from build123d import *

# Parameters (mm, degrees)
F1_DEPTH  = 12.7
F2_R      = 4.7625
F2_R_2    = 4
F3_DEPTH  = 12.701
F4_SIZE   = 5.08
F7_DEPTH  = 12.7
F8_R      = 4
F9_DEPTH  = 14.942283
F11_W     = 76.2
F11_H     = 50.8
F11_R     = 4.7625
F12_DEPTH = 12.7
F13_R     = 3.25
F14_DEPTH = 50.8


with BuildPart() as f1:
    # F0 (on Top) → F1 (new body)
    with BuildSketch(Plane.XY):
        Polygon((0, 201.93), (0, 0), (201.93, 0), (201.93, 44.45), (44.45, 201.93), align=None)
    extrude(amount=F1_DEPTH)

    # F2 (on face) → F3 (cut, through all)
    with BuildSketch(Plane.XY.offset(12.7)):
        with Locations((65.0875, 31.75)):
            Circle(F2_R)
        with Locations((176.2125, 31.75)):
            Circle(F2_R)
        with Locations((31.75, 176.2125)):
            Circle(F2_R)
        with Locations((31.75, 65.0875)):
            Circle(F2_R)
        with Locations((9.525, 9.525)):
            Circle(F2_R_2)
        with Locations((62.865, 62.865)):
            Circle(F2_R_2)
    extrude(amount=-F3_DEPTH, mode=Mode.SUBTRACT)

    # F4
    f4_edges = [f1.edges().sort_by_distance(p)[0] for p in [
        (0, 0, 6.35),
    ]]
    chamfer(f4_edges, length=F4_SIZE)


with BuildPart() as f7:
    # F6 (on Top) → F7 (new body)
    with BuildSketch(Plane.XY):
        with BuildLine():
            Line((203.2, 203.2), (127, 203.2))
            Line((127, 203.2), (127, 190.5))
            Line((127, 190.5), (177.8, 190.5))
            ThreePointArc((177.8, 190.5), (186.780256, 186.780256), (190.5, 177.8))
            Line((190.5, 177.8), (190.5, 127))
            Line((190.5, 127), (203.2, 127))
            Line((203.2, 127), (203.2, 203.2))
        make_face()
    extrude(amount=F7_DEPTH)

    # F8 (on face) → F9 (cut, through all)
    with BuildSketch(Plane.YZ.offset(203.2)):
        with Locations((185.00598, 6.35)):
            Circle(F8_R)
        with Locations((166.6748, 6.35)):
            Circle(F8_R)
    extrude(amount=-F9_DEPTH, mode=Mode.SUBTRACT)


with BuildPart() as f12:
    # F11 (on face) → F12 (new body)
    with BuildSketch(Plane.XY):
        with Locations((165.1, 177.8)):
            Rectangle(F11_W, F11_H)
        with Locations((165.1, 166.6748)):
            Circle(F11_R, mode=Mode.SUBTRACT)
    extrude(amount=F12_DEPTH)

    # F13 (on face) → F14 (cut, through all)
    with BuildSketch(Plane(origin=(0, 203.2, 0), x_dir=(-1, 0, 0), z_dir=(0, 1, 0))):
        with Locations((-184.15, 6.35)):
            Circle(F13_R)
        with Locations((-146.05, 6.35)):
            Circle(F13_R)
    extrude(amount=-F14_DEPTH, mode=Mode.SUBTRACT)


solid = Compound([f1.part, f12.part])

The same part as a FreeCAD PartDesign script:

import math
import FreeCAD as App
import Part
import Sketcher

V = App.Vector
Q = App.Units.Quantity


def edges_at(feature, points):
    """Names of the edges that pass closest to the given points."""
    edges = feature.Shape.Edges
    near = lambda p: min(range(len(edges)), key=lambda i: edges[i].distToShape(Part.Vertex(*p))[0])
    return sorted({f"Edge{near(p) + 1}" for p in points})


def add_polygon(sketch, points):
    """Adds a closed chain of lines whose ends are joined by coincident constraints."""
    first, n = sketch.GeometryCount, len(points)
    for a, b in zip(points, points[1:] + points[:1]):
        sketch.addGeometry(Part.LineSegment(App.Vector(*a, 0), App.Vector(*b, 0)), False)
    for i in range(n):
        sketch.addConstraint(Sketcher.Constraint("Coincident", first + i, 2, first + (i + 1) % n, 1))

doc = App.newDocument("Part")
params = doc.addObject("Spreadsheet::Sheet", "Params")
for row, (alias, value) in enumerate([
    ("sketch1_width", "7.95 in"),
    ("sketch1_width2", "1.75 in"),
    ("pad1_length", "0.5 in"),
    ("sketch2_diameter", "0.375 in"),
    ("chamfer_size", "0.2 in"),
    ("sketch3_radius", "0.5 in"),
    ("sketch3_width", "3 in"),
    ("sketch3_width2", "2 in"),
    ("pad2_length", "0.5 in"),
    ("pocket2_length", "14.942283 mm"),
    ("sketch5_width", "3 in"),
    ("sketch5_height", "2 in"),
    ("sketch5_diameter", "0.375 in"),
    ("pad3_length", "0.5 in"),
], start=1):
    params.set(f"A{row}", alias)
    params.set(f"B{row}", "=" + value)
    params.setAlias(f"B{row}", alias)

body = doc.addObject("PartDesign::Body", "Body")

sketch1 = body.newObject("Sketcher::SketchObject", "Sketch")
sketch1.AttachmentSupport = (doc.getObject("XY_Plane"), [""])
sketch1.MapMode = "FlatFace"
add_polygon(sketch1, [(0, 202), (0, 0), (202, 0), (202, 44), (44, 202)])
sketch1.addConstraint(Sketcher.Constraint("Vertical", 0))
sketch1.addConstraint(Sketcher.Constraint("Horizontal", 1))
sketch1.addConstraint(Sketcher.Constraint("Vertical", 2))
sketch1.addConstraint(Sketcher.Constraint("Horizontal", 4))
sketch1.addConstraint(Sketcher.Constraint("Coincident", 0, 2, -1, 1))
sketch1.addConstraint(Sketcher.Constraint("Equal", 1, 0))
sketch1.addConstraint(Sketcher.Constraint("Equal", 4, 2))
sketch1.addConstraint(Sketcher.Constraint("DistanceX", 1, 1, 1, 2, Q("7.95 in")))
sketch1.addConstraint(Sketcher.Constraint("DistanceX", 4, 2, 4, 1, Q("1.75 in")))
sketch1.setExpression("Constraints[12]", "Params.sketch1_width")
sketch1.setExpression("Constraints[13]", "Params.sketch1_width2")
pad1 = body.newObject("PartDesign::Pad", "Pad")
pad1.Profile = sketch1
pad1.setExpression("Length", "Params.pad1_length")

sketch2 = body.newObject("Sketcher::SketchObject", "Sketch001")
sketch2.AttachmentSupport = (doc.getObject("XY_Plane"), [""])
sketch2.MapMode = "FlatFace"
sketch2.AttachmentOffset = App.Placement(V(0, 0, 0.5 * 25.4), App.Rotation())
sketch2.addGeometry(Part.Circle(V(65.1, 31.8, 0), V(0, 0, 1), 4.8), False)
sketch2.addGeometry(Part.Circle(V(176.2, 31.8, 0), V(0, 0, 1), 4.8), False)
sketch2.addGeometry(Part.Circle(V(31.8, 176.2, 0), V(0, 0, 1), 4.8), False)
sketch2.addGeometry(Part.Circle(V(31.8, 65.1, 0), V(0, 0, 1), 4.8), False)
sketch2.addGeometry(Part.Circle(V(9.5, 9.5, 0), V(0, 0, 1), 4), False)
sketch2.addGeometry(Part.Circle(V(62.9, 62.9, 0), V(0, 0, 1), 4), False)
sketch2.addConstraint(Sketcher.Constraint("Equal", 0, 1))
sketch2.addConstraint(Sketcher.Constraint("Equal", 1, 2))
sketch2.addConstraint(Sketcher.Constraint("Equal", 2, 3))
sketch2.addConstraint(Sketcher.Constraint("Equal", 4, 5))
sketch2.addConstraint(Sketcher.Constraint("Horizontal", 0, 3, 1, 3))
sketch2.addConstraint(Sketcher.Constraint("Vertical", 2, 3, 3, 3))
sketch2.addConstraint(Sketcher.Constraint("Diameter", 0, Q("0.375 in")))
sketch2.addConstraint(Sketcher.Constraint("DistanceX", 4, 3, 5, 3, Q("2.1 in")))
sketch2.addConstraint(Sketcher.Constraint("DistanceY", 4, 3, 5, 3, Q("2.1 in")))
sketch2.addConstraint(Sketcher.Constraint("Diameter", 4, 8.0))
sketch2.addConstraint(Sketcher.Constraint("DistanceY", -1, 1, 0, 3, Q("1.25 in")))
sketch2.addConstraint(Sketcher.Constraint("DistanceX", -1, 1, 2, 3, Q("1.25 in")))
sketch2.addConstraint(Sketcher.Constraint("DistanceX", -1, 1, 0, 3, Q("2.5625 in")))
sketch2.addConstraint(Sketcher.Constraint("DistanceX", -1, 1, 1, 3, Q("6.9375 in")))
sketch2.addConstraint(Sketcher.Constraint("DistanceY", -1, 1, 2, 3, Q("6.9375 in")))
sketch2.addConstraint(Sketcher.Constraint("DistanceY", -1, 1, 3, 3, Q("2.5625 in")))
sketch2.addConstraint(Sketcher.Constraint("DistanceX", -1, 1, 4, 3, Q("0.375 in")))
sketch2.addConstraint(Sketcher.Constraint("DistanceY", -1, 1, 4, 3, Q("0.375 in")))
sketch2.setExpression("Constraints[6]", "Params.sketch2_diameter")
pocket1 = body.newObject("PartDesign::Pocket", "Pocket")
pocket1.Profile = sketch2
pocket1.Type = "ThroughAll"
doc.recompute()

chamfer = body.newObject("PartDesign::Chamfer", "Chamfer")
chamfer.Base = (pocket1, edges_at(pocket1, [(0, 0, 6.35)]))
chamfer.setExpression("Size", "Params.chamfer_size")
body2 = doc.addObject("PartDesign::Body", "Body001")

sketch3 = body2.newObject("Sketcher::SketchObject", "Sketch002")
sketch3.AttachmentSupport = (doc.getObject("XY_Plane001"), [""])
sketch3.MapMode = "FlatFace"
sketch3.addGeometry(Part.LineSegment(V(203, 203, 0), V(127, 203, 0)), False)
sketch3.addGeometry(Part.LineSegment(V(127, 203, 0), V(127, 190, 0)), False)
sketch3.addGeometry(Part.LineSegment(V(127, 190, 0), V(178, 190, 0)), False)
sketch3.addGeometry(Part.ArcOfCircle(Part.Circle(V(178, 178, 0), V(0, 0, 1), 13), math.radians(0), math.radians(90)), False)
sketch3.addGeometry(Part.LineSegment(V(190, 178, 0), V(190, 127, 0)), False)
sketch3.addGeometry(Part.LineSegment(V(190, 127, 0), V(203, 127, 0)), False)
sketch3.addGeometry(Part.LineSegment(V(203, 127, 0), V(203, 203, 0)), False)
sketch3.addConstraint(Sketcher.Constraint("Coincident", 0, 2, 1, 1))
sketch3.addConstraint(Sketcher.Constraint("Coincident", 1, 2, 2, 1))
sketch3.addConstraint(Sketcher.Constraint("Tangent", 2, 2, 3, 2))
sketch3.addConstraint(Sketcher.Constraint("Tangent", 3, 1, 4, 1))
sketch3.addConstraint(Sketcher.Constraint("Coincident", 4, 2, 5, 1))
sketch3.addConstraint(Sketcher.Constraint("Coincident", 5, 2, 6, 1))
sketch3.addConstraint(Sketcher.Constraint("Coincident", 6, 2, 0, 1))
sketch3.addConstraint(Sketcher.Constraint("Horizontal", 0))
sketch3.addConstraint(Sketcher.Constraint("Vertical", 1))
sketch3.addConstraint(Sketcher.Constraint("Horizontal", 2))
sketch3.addConstraint(Sketcher.Constraint("Vertical", 4))
sketch3.addConstraint(Sketcher.Constraint("Horizontal", 5))
sketch3.addConstraint(Sketcher.Constraint("Vertical", 6))
sketch3.addConstraint(Sketcher.Constraint("Equal", 5, 1))
sketch3.addConstraint(Sketcher.Constraint("Equal", 2, 4))
sketch3.addConstraint(Sketcher.Constraint("Radius", 3, Q("0.5 in")))
sketch3.addConstraint(Sketcher.Constraint("DistanceX", 0, 2, 0, 1, Q("3 in")))
sketch3.addConstraint(Sketcher.Constraint("DistanceX", 2, 1, 2, 2, Q("2 in")))
sketch3.addConstraint(Sketcher.Constraint("DistanceX", -1, 1, 3, 3, Q("7 in")))
sketch3.addConstraint(Sketcher.Constraint("DistanceY", -1, 1, 3, 3, Q("7 in")))
sketch3.setExpression("Constraints[15]", "Params.sketch3_radius")
sketch3.setExpression("Constraints[16]", "Params.sketch3_width")
sketch3.setExpression("Constraints[17]", "Params.sketch3_width2")
pad2 = body2.newObject("PartDesign::Pad", "Pad001")
pad2.Profile = sketch3
pad2.setExpression("Length", "Params.pad2_length")

sketch4 = body2.newObject("Sketcher::SketchObject", "Sketch003")
sketch4.AttachmentSupport = (doc.getObject("YZ_Plane001"), [""])
sketch4.MapMode = "FlatFace"
sketch4.AttachmentOffset = App.Placement(V(0, 0, 8 * 25.4), App.Rotation())
sketch4.addGeometry(Part.Circle(V(185, 6.3, 0), V(0, 0, 1), 4), False)
sketch4.addGeometry(Part.Circle(V(166.7, 6.3, 0), V(0, 0, 1), 4), False)
sketch4.addConstraint(Sketcher.Constraint("Equal", 0, 1))
sketch4.addConstraint(Sketcher.Constraint("Horizontal", 0, 3, 1, 3))
sketch4.addConstraint(Sketcher.Constraint("Diameter", 0, 8.0))
sketch4.addConstraint(Sketcher.Constraint("DistanceY", -1, 1, 0, 3, Q("0.25 in")))
sketch4.addConstraint(Sketcher.Constraint("DistanceX", -1, 1, 1, 3, Q("6.562 in")))
sketch4.addConstraint(Sketcher.Constraint("DistanceX", -1, 1, 0, 3, Q("7.2837 in")))
pocket2 = body2.newObject("PartDesign::Pocket", "Pocket001")
pocket2.Profile = sketch4
pocket2.setExpression("Length", "Params.pocket2_length")
body3 = doc.addObject("PartDesign::Body", "Body002")

sketch5 = body3.newObject("Sketcher::SketchObject", "Sketch004")
sketch5.AttachmentSupport = (doc.getObject("XY_Plane002"), [""])
sketch5.MapMode = "FlatFace"
add_polygon(sketch5, [(127, 203.2), (127, 152.4), (203.2, 152.4), (203.2, 203.2)])
sketch5.addGeometry(Part.Circle(V(165.1, 166.7, 0), V(0, 0, 1), 4.8), False)
sketch5.addConstraint(Sketcher.Constraint("Vertical", 0))
sketch5.addConstraint(Sketcher.Constraint("Horizontal", 1))
sketch5.addConstraint(Sketcher.Constraint("Vertical", 2))
sketch5.addConstraint(Sketcher.Constraint("Horizontal", 3))
sketch5.addConstraint(Sketcher.Constraint("DistanceX", 1, 1, 1, 2, Q("3 in")))
sketch5.addConstraint(Sketcher.Constraint("DistanceY", 0, 2, 0, 1, Q("2 in")))
sketch5.addConstraint(Sketcher.Constraint("Diameter", 4, Q("0.375 in")))
sketch5.addConstraint(Sketcher.Constraint("DistanceX", -1, 1, 0, 2, Q("5 in")))
sketch5.addConstraint(Sketcher.Constraint("DistanceY", -1, 1, 0, 2, Q("6 in")))
sketch5.addConstraint(Sketcher.Constraint("DistanceX", -1, 1, 4, 3, Q("6.5 in")))
sketch5.addConstraint(Sketcher.Constraint("DistanceY", -1, 1, 4, 3, Q("6.562 in")))
sketch5.setExpression("Constraints[8]", "Params.sketch5_width")
sketch5.setExpression("Constraints[9]", "Params.sketch5_height")
sketch5.setExpression("Constraints[10]", "Params.sketch5_diameter")
pad3 = body3.newObject("PartDesign::Pad", "Pad002")
pad3.Profile = sketch5
pad3.setExpression("Length", "Params.pad3_length")

sketch6 = body3.newObject("Sketcher::SketchObject", "Sketch005")
sketch6.AttachmentSupport = (doc.getObject("XZ_Plane002"), [""])
sketch6.MapMode = "FlatFace"
sketch6.AttachmentOffset = App.Placement(V(0, 0, -8 * 25.4), App.Rotation())
sketch6.addGeometry(Part.Circle(V(184.2, 6.3, 0), V(0, 0, 1), 3.2), False)
sketch6.addGeometry(Part.Circle(V(146.1, 6.3, 0), V(0, 0, 1), 3.2), False)
sketch6.addConstraint(Sketcher.Constraint("Equal", 0, 1))
sketch6.addConstraint(Sketcher.Constraint("Horizontal", 0, 3, 1, 3))
sketch6.addConstraint(Sketcher.Constraint("DistanceX", 1, 3, 0, 3, Q("1.5 in")))
sketch6.addConstraint(Sketcher.Constraint("Diameter", 0, 6.5))
sketch6.addConstraint(Sketcher.Constraint("DistanceX", -1, 1, 0, 3, Q("7.25 in")))
sketch6.addConstraint(Sketcher.Constraint("DistanceY", -1, 1, 0, 3, Q("0.25 in")))
pocket3 = body3.newObject("PartDesign::Pocket", "Pocket002")
pocket3.Profile = sketch6
pocket3.Type = "ThroughAll"
pocket3.Reversed = True
body2.Visibility = False

doc.recompute()
